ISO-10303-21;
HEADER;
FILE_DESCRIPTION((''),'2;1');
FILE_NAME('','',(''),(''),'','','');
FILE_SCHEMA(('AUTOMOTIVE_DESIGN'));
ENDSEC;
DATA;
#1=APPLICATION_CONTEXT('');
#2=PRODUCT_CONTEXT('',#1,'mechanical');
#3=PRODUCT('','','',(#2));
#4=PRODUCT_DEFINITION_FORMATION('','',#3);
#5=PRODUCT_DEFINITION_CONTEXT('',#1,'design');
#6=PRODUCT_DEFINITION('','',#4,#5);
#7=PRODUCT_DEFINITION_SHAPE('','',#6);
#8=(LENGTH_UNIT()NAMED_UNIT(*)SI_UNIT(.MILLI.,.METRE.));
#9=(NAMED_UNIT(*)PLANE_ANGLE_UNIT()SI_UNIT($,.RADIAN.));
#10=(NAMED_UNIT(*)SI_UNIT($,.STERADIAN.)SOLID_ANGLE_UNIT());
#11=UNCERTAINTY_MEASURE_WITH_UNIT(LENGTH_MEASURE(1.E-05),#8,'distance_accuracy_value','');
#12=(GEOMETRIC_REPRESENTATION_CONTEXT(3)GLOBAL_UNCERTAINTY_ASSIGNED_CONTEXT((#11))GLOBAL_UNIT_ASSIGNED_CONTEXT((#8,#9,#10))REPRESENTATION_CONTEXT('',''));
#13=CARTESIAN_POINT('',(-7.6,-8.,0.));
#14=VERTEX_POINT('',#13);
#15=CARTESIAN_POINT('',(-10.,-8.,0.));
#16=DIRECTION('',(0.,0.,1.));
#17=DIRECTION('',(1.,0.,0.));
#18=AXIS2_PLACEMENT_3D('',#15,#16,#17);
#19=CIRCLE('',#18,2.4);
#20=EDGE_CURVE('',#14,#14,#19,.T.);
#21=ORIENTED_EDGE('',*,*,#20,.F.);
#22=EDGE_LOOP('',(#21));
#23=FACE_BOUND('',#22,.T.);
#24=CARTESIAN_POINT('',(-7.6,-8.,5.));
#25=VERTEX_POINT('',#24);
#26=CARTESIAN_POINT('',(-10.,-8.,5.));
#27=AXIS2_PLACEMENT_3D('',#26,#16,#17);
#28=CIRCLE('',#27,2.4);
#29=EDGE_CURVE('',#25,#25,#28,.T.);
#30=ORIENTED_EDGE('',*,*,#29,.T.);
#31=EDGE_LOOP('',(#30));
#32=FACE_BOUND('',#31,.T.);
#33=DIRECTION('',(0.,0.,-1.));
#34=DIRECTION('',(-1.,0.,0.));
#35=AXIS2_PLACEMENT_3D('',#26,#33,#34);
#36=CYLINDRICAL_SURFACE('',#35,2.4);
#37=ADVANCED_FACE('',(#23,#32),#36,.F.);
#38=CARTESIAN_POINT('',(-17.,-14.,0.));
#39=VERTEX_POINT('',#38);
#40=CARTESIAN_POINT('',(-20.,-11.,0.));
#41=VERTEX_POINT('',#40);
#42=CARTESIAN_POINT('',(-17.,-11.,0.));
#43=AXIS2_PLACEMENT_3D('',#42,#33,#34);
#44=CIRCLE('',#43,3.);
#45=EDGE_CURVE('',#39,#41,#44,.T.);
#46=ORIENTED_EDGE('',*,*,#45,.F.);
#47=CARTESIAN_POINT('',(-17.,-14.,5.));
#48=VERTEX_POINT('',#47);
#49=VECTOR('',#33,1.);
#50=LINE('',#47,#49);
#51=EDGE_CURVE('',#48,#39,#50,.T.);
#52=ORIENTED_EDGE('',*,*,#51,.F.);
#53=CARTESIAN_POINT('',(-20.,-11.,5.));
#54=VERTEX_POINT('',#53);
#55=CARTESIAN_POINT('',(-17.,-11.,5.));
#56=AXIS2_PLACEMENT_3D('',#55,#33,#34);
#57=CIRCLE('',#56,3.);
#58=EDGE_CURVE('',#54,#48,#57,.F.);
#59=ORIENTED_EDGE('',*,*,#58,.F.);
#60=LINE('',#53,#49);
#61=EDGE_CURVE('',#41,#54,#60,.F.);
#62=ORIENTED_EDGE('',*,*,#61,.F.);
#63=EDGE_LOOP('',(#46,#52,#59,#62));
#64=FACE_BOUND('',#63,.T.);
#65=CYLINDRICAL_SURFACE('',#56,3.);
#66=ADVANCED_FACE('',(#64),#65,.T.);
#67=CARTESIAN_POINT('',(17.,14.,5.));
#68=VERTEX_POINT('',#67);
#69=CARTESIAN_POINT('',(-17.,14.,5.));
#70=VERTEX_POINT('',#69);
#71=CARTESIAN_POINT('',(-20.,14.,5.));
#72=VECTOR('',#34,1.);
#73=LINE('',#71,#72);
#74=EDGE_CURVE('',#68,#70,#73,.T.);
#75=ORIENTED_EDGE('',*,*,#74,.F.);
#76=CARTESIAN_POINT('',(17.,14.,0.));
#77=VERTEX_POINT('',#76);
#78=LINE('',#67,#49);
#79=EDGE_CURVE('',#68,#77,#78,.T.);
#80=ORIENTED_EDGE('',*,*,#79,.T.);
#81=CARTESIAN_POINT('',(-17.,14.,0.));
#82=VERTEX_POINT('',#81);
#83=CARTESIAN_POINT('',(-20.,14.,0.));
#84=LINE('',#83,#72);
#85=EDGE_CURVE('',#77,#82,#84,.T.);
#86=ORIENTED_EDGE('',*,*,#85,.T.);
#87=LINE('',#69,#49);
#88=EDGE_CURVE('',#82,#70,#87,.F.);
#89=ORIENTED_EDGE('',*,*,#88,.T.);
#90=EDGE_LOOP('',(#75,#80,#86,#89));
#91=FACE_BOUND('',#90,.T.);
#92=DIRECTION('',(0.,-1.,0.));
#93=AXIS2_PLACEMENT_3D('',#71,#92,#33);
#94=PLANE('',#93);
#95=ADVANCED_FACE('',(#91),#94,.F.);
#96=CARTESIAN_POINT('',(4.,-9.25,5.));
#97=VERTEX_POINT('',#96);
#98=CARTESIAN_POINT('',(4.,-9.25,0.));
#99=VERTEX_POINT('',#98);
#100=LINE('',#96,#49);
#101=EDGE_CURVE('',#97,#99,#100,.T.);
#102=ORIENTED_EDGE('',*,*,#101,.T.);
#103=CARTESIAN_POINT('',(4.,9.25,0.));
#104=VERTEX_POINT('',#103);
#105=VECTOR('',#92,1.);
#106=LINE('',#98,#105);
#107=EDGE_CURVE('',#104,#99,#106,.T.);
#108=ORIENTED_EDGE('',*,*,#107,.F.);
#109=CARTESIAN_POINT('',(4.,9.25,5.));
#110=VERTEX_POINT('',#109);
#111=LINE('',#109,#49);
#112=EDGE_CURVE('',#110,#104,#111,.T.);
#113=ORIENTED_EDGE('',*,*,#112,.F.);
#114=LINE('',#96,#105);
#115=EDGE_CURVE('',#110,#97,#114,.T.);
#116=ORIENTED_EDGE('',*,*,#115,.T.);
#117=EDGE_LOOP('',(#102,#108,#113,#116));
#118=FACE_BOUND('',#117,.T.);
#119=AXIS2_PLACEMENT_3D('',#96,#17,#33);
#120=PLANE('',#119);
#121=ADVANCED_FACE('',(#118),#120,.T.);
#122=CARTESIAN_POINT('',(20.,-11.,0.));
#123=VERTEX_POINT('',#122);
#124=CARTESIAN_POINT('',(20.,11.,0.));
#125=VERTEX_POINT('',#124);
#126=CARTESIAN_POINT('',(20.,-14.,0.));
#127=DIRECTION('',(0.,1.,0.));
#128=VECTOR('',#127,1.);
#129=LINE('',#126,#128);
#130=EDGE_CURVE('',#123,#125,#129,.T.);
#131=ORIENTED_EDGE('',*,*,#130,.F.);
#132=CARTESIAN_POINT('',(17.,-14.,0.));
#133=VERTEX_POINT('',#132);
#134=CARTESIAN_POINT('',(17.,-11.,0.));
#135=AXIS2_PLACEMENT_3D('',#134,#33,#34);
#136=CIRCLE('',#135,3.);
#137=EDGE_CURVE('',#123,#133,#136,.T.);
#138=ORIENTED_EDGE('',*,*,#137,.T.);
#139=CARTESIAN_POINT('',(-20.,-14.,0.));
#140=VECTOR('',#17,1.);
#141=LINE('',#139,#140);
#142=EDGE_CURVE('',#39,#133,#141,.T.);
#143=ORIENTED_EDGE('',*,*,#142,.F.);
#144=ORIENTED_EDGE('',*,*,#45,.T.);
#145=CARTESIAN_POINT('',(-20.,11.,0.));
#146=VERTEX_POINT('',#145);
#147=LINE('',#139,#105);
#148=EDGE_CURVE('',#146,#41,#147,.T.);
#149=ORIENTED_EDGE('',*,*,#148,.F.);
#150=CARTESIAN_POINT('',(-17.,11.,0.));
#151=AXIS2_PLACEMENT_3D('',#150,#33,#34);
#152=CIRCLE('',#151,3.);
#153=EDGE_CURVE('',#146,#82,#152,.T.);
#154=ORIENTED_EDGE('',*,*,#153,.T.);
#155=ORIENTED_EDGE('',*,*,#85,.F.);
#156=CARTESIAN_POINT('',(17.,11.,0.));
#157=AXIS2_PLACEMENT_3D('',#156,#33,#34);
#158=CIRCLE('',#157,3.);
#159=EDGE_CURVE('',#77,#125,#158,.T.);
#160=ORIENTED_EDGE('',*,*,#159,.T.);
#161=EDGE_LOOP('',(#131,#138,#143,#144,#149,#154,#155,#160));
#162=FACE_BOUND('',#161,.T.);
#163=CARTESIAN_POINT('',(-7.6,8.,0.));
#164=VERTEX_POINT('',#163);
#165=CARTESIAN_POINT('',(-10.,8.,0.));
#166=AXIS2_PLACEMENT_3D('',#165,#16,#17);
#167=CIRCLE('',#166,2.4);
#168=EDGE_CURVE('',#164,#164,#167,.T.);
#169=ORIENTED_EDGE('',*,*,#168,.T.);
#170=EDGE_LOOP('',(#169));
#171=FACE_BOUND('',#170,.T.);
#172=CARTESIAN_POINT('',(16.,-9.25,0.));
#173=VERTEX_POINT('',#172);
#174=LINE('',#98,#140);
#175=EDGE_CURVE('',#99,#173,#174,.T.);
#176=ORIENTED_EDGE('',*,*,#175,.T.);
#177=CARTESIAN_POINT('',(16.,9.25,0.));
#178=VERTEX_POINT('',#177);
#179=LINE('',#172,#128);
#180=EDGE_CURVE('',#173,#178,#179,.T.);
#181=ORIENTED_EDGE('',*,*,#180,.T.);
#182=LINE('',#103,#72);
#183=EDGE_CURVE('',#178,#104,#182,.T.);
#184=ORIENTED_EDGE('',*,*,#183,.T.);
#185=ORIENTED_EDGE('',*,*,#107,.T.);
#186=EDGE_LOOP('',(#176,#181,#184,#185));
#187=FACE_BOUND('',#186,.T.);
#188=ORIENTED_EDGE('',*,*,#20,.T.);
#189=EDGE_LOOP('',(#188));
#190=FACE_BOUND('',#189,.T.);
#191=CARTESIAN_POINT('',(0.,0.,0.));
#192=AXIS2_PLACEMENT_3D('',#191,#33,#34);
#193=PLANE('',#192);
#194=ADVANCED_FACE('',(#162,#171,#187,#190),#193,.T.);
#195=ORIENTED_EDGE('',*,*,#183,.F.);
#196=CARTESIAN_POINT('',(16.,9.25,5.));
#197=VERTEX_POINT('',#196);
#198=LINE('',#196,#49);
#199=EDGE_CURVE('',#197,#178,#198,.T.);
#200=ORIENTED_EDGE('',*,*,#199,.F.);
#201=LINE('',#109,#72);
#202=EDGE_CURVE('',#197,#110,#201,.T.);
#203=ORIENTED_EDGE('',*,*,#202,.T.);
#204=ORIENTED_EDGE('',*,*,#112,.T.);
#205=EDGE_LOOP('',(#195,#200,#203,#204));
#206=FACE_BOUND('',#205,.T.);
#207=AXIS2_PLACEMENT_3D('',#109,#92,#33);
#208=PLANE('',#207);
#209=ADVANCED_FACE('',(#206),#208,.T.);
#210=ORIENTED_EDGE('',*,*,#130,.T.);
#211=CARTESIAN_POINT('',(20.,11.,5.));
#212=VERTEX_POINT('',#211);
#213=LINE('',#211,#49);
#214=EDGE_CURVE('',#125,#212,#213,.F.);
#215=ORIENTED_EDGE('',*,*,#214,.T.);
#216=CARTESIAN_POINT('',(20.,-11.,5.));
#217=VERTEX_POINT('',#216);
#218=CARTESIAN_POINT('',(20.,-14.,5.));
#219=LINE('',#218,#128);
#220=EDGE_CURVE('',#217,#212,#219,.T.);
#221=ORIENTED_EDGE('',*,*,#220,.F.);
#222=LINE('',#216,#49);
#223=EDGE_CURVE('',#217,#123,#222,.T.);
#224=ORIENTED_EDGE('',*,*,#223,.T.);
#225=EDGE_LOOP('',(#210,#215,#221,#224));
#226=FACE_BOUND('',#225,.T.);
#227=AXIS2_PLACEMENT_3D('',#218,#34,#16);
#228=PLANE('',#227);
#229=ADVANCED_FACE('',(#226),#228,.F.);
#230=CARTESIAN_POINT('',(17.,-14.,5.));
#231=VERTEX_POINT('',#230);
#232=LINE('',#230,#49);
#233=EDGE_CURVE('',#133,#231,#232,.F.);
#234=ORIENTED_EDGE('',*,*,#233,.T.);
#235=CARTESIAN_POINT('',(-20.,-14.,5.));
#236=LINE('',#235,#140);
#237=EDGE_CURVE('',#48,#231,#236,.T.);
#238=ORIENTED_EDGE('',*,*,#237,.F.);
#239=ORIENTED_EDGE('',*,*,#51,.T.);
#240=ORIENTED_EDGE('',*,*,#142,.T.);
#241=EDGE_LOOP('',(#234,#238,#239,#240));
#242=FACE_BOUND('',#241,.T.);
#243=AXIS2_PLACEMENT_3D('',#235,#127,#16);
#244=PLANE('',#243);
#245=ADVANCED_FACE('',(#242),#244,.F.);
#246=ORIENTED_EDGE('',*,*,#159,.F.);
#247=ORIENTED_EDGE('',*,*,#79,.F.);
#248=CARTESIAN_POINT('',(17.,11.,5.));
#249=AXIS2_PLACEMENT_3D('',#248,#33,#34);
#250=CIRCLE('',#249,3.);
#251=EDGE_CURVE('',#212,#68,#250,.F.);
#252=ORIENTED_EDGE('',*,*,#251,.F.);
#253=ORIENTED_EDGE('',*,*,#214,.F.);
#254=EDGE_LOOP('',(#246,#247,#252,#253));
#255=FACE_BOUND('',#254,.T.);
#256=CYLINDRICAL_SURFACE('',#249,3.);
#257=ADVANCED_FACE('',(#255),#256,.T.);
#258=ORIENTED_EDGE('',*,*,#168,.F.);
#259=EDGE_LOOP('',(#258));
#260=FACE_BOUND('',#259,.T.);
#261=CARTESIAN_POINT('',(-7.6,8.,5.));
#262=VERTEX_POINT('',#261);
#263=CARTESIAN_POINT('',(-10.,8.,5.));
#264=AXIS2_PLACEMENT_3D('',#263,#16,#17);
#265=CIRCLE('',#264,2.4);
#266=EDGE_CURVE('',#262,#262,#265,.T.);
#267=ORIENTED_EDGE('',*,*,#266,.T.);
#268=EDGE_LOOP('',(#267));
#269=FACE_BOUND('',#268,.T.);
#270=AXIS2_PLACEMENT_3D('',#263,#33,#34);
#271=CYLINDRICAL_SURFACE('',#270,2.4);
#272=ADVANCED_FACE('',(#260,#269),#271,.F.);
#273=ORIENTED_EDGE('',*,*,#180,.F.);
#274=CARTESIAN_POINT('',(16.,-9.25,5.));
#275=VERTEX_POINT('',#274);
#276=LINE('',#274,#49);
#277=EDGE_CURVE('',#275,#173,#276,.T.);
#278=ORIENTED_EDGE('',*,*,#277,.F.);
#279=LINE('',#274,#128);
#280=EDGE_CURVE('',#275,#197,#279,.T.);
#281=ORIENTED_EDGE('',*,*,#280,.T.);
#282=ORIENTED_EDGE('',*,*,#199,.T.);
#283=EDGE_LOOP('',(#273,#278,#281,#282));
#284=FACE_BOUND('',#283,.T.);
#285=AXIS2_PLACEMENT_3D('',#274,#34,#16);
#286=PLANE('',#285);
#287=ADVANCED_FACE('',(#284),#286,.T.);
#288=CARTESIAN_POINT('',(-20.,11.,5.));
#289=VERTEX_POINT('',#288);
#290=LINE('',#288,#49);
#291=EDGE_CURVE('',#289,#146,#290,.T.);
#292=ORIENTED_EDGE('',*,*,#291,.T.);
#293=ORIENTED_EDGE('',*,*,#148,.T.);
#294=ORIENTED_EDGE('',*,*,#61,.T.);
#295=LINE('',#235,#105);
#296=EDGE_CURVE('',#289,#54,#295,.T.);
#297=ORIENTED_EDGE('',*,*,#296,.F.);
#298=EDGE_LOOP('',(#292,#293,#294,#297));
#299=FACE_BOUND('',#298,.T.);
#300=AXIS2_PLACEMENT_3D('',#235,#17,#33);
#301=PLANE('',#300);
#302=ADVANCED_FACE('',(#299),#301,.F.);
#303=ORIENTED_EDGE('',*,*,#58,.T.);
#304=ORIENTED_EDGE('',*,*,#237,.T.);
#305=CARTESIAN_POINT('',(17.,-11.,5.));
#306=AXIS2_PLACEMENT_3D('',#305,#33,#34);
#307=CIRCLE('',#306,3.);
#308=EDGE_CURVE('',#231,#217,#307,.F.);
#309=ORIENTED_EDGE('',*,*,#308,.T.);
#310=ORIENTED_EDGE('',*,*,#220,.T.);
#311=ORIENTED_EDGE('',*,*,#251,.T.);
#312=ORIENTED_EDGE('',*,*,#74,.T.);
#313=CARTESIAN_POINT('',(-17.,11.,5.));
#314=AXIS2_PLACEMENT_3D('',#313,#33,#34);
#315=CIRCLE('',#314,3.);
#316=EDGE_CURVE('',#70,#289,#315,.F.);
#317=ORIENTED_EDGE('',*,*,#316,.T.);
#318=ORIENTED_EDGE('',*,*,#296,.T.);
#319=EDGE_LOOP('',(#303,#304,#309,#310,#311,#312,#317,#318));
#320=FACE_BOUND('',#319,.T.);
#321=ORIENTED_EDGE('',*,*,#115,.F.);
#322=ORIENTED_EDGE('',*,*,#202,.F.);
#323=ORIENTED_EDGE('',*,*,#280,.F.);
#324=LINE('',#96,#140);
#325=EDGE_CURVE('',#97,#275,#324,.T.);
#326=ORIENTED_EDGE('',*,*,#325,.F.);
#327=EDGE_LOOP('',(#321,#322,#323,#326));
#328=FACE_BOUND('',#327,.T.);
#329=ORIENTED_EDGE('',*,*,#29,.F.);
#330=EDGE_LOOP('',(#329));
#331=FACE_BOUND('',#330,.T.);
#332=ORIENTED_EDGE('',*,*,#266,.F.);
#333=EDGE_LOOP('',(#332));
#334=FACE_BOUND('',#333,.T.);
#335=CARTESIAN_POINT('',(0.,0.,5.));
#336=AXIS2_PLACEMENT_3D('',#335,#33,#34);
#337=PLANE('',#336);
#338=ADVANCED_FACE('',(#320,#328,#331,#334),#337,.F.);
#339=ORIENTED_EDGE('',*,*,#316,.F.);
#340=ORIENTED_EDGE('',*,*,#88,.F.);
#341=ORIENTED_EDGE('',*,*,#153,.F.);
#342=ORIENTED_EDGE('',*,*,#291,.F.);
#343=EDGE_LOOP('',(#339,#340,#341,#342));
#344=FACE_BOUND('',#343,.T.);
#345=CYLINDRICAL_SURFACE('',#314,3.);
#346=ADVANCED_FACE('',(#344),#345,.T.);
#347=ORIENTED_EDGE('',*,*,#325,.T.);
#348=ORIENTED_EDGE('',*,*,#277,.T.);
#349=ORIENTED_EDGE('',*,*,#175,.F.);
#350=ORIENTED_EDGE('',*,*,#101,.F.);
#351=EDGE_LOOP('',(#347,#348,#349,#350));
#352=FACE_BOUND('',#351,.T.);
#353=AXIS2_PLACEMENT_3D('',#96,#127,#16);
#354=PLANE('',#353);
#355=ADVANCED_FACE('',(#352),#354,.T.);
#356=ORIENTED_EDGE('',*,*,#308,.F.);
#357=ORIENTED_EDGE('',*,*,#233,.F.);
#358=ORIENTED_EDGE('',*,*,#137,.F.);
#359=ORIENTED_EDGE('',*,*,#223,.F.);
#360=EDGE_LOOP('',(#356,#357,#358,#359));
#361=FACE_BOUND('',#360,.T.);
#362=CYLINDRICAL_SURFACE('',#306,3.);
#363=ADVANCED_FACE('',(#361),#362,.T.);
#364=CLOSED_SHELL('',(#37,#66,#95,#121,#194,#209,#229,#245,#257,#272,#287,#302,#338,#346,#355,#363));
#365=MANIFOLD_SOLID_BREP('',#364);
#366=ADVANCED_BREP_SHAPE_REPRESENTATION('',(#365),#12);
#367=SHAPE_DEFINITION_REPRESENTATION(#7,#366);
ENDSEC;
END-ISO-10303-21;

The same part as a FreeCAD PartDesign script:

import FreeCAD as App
import Part
import Sketcher
Q = App.Units.Quantity


def edges_at(feature, points):
    """Names of the edges that pass closest to the given points."""
    edges = feature.Shape.Edges
    near = lambda p: min(range(len(edges)), key=lambda i: edges[i].distToShape(Part.Vertex(*p))[0])
    return sorted({f"Edge{near(p) + 1}" for p in points})


def add_polygon(sketch, points):
    """Adds a closed chain of lines whose ends are joined by coincident constraints."""
    first, n = sketch.GeometryCount, len(points)
    for a, b in zip(points, points[1:] + points[:1]):
        sketch.addGeometry(Part.LineSegment(App.Vector(*a, 0), App.Vector(*b, 0)), False)
    for i in range(n):
        sketch.addConstraint(Sketcher.Constraint("Coincident", first + i, 2, first + (i + 1) % n, 1))

doc = App.newDocument("Part")
body = doc.addObject("PartDesign::Body", "Body")

# Sketch on XY plane
sketch1 = doc.addObject("Sketcher::SketchObject", "Sketch")
body.addObject(sketch1)
sketch1.AttachmentSupport = (doc.XY_Plane, [""])
sketch1.MapMode = "FlatFace"
add_polygon(sketch1, [(-20, 14), (-20, -14), (20, -14), (20, 14)])  # lines 0-3
sketch1.addGeometry(Part.Circle(App.Vector(-10, -8, 0), App.Vector(0, 0, 1), 2.4), False)  # 4
sketch1.addGeometry(Part.Circle(App.Vector(-10, 8, 0), App.Vector(0, 0, 1), 2.4), False)  # 5
add_polygon(sketch1, [(16, -9.2), (4, -9.2), (4, 9.2), (16, 9.2)])  # lines 6-9
sketch1.addConstraint([
    Sketcher.Constraint("Vertical", 0),
    Sketcher.Constraint("Horizontal", 1),
    Sketcher.Constraint("Vertical", 2),
    Sketcher.Constraint("Horizontal", 3),
    Sketcher.Constraint("Horizontal", 6),
    Sketcher.Constraint("Vertical", 7),
    Sketcher.Constraint("Horizontal", 8),
    Sketcher.Constraint("Vertical", 9),
    Sketcher.Constraint("Equal", 4, 5),
    Sketcher.Constraint("Symmetric", 0, 2, 2, 2, -1, 1),
    Sketcher.Constraint("Symmetric", 4, 3, 5, 3, -1),
    Sketcher.Constraint("Diameter", 4, Q("4.8 mm")),
    Sketcher.Constraint("DistanceX", 1, 1, 1, 2, Q("40 mm")),
    Sketcher.Constraint("DistanceX", 6, 2, 6, 1, Q("12 mm")),
    Sketcher.Constraint("DistanceY", 0, 2, 0, 1, Q("28 mm")),
    Sketcher.Constraint("DistanceY", 7, 1, 7, 2, Q("18.5 mm")),
    Sketcher.Constraint("DistanceX", 4, 3, -1, 1, Q("10 mm")),
    Sketcher.Constraint("DistanceY", 4, 3, -1, 1, Q("8 mm")),
    Sketcher.Constraint("DistanceX", -1, 1, 6, 2, Q("4 mm")),
    Sketcher.Constraint("DistanceY", 6, 2, -1, 1, Q("9.25 mm")),
])
pad1 = doc.addObject("PartDesign::Pad", "Pad")
body.addObject(pad1)
pad1.Profile = sketch1
pad1.Length = 5
doc.recompute()

fillet = doc.addObject("PartDesign::Fillet", "Fillet")
body.addObject(fillet)
fillet.Base = (pad1, edges_at(pad1, [
    (20, -14, 2.5),
    (-20, -14, 2.5),
    (-20, 14, 2.5),
    (20, 14, 2.5),
]))
fillet.Radius = 3

doc.recompute()
